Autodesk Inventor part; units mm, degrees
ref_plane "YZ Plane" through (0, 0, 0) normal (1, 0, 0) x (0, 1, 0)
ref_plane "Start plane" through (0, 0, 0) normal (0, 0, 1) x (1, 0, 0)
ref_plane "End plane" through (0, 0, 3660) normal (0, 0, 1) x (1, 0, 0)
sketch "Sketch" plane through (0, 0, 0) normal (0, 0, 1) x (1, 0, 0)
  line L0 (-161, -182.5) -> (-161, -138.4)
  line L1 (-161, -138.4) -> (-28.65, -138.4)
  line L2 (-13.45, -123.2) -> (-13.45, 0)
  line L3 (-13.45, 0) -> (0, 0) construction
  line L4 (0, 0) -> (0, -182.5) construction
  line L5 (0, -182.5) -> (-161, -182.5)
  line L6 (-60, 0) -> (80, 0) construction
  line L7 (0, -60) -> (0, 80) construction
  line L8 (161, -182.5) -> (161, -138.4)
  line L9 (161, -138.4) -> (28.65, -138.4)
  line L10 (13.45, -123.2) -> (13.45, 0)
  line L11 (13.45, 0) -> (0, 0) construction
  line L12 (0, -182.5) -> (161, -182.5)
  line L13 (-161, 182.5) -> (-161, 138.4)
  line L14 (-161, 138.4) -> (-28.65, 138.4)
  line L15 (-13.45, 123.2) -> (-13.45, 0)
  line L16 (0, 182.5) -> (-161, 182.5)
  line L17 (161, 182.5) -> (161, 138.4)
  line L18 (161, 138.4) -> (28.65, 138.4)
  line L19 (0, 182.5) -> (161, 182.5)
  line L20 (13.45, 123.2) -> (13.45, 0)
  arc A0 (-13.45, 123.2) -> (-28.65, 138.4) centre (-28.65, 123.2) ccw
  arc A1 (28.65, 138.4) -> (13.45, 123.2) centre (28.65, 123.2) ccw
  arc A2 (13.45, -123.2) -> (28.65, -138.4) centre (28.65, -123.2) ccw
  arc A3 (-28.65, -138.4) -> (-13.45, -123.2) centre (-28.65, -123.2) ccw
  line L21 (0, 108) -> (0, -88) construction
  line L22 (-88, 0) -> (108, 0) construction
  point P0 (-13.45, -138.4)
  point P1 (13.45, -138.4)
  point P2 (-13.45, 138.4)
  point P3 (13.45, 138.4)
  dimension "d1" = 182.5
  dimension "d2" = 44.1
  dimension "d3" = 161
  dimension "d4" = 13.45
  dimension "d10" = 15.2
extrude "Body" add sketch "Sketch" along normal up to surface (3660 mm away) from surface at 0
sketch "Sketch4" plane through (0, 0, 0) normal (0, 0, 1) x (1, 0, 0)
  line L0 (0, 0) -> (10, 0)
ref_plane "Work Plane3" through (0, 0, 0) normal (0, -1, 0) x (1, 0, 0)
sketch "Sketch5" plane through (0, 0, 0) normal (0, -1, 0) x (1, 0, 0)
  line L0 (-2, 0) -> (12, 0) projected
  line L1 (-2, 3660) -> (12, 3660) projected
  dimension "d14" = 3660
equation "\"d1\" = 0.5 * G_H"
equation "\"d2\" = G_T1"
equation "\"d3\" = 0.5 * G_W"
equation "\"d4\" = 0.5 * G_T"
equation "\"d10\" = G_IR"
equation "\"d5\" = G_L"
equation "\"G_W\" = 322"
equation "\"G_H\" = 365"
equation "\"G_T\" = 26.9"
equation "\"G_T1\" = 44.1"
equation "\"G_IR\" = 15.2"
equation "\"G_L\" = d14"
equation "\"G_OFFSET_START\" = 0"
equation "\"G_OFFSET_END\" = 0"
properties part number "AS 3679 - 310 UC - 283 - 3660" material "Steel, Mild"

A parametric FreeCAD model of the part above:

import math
import FreeCAD as App
import Part
import Sketcher

V = App.Vector

doc = App.newDocument("Part")
body = doc.addObject("PartDesign::Body", "Body")

# Sketch on XY plane
sketch1 = body.newObject("Sketcher::SketchObject", "Sketch")
sketch1.AttachmentSupport = (doc.getObject("XY_Plane"), [""])
sketch1.MapMode = "FlatFace"
sketch1.addGeometry(Part.LineSegment(V(-161, -138, 0), V(-161, -182, 0)), False)
sketch1.addGeometry(Part.LineSegment(V(-161, -182, 0), V(161, -182, 0)), False)
sketch1.addGeometry(Part.LineSegment(V(161, -182, 0), V(161, -138, 0)), False)
sketch1.addGeometry(Part.LineSegment(V(161, -138, 0), V(29, -138, 0)), False)
sketch1.addGeometry(Part.ArcOfCircle(Part.Circle(V(29, -123, 0), V(0, 0, 1), 15), math.radians(180), math.radians(270)), False)
sketch1.addGeometry(Part.LineSegment(V(13, -123, 0), V(13, 123, 0)), False)
sketch1.addGeometry(Part.ArcOfCircle(Part.Circle(V(29, 123, 0), V(0, 0, 1), 15), math.radians(90), math.radians(180)), False)
sketch1.addGeometry(Part.LineSegment(V(29, 138, 0), V(161, 138, 0)), False)
sketch1.addGeometry(Part.LineSegment(V(161, 138, 0), V(161, 182, 0)), False)
sketch1.addGeometry(Part.LineSegment(V(161, 182, 0), V(-161, 182, 0)), False)
sketch1.addGeometry(Part.LineSegment(V(-161, 182, 0), V(-161, 138, 0)), False)
sketch1.addGeometry(Part.LineSegment(V(-161, 138, 0), V(-29, 138, 0)), False)
sketch1.addGeometry(Part.ArcOfCircle(Part.Circle(V(-29, 123, 0), V(0, 0, 1), 15), math.radians(0), math.radians(90)), False)
sketch1.addGeometry(Part.LineSegment(V(-13, 123, 0), V(-13, -123, 0)), False)
sketch1.addGeometry(Part.ArcOfCircle(Part.Circle(V(-29, -123, 0), V(0, 0, 1), 15), math.radians(-90), math.radians(0)), False)
sketch1.addGeometry(Part.LineSegment(V(-29, -138, 0), V(-161, -138, 0)), False)
sketch1.addConstraint(Sketcher.Constraint("Coincident", 0, 2, 1, 1))
sketch1.addConstraint(Sketcher.Constraint("Coincident", 1, 2, 2, 1))
sketch1.addConstraint(Sketcher.Constraint("Coincident", 2, 2, 3, 1))
sketch1.addConstraint(Sketcher.Constraint("Tangent", 3, 2, 4, 2))
sketch1.addConstraint(Sketcher.Constraint("Tangent", 4, 1, 5, 1))
sketch1.addConstraint(Sketcher.Constraint("Tangent", 5, 2, 6, 2))
sketch1.addConstraint(Sketcher.Constraint("Tangent", 6, 1, 7, 1))
sketch1.addConstraint(Sketcher.Constraint("Coincident", 7, 2, 8, 1))
sketch1.addConstraint(Sketcher.Constraint("Coincident", 8, 2, 9, 1))
sketch1.addConstraint(Sketcher.Constraint("Coincident", 9, 2, 10, 1))
sketch1.addConstraint(Sketcher.Constraint("Coincident", 10, 2, 11, 1))
sketch1.addConstraint(Sketcher.Constraint("Tangent", 11, 2, 12, 2))
sketch1.addConstraint(Sketcher.Constraint("Tangent", 12, 1, 13, 1))
sketch1.addConstraint(Sketcher.Constraint("Tangent", 13, 2, 14, 2))
sketch1.addConstraint(Sketcher.Constraint("Tangent", 14, 1, 15, 1))
sketch1.addConstraint(Sketcher.Constraint("Coincident", 15, 2, 0, 1))
sketch1.addConstraint(Sketcher.Constraint("Vertical", 0))
sketch1.addConstraint(Sketcher.Constraint("Horizontal", 1))
sketch1.addConstraint(Sketcher.Constraint("Vertical", 2))
sketch1.addConstraint(Sketcher.Constraint("Horizontal", 3))
sketch1.addConstraint(Sketcher.Constraint("Vertical", 5))
sketch1.addConstraint(Sketcher.Constraint("Horizontal", 7))
sketch1.addConstraint(Sketcher.Constraint("Vertical", 8))
sketch1.addConstraint(Sketcher.Constraint("Horizontal", 9))
sketch1.addConstraint(Sketcher.Constraint("Vertical", 10))
sketch1.addConstraint(Sketcher.Constraint("Horizontal", 11))
sketch1.addConstraint(Sketcher.Constraint("Vertical", 13))
sketch1.addConstraint(Sketcher.Constraint("Horizontal", 15))
sketch1.addConstraint(Sketcher.Constraint("Equal", 4, 6))
sketch1.addConstraint(Sketcher.Constraint("Equal", 6, 12))
sketch1.addConstraint(Sketcher.Constraint("Equal", 12, 14))
sketch1.addConstraint(Sketcher.Constraint("Symmetric", 4, 3, 12, 3, -1, 1))
sketch1.addConstraint(Sketcher.Constraint("Symmetric", 0, 2, 8, 2, -1, 1))
sketch1.addConstraint(Sketcher.Constraint("Symmetric", 7, 2, 10, 2, -2))
sketch1.addConstraint(Sketcher.Constraint("Symmetric", 2, 2, 15, 2, -2))
sketch1.addConstraint(Sketcher.Constraint("Radius", 4, 15.2))
sketch1.addConstraint(Sketcher.Constraint("DistanceY", 0, 2, 0, 1, 44.1))
sketch1.addConstraint(Sketcher.Constraint("DistanceX", 0, 2, -1, 1, 161.0))
sketch1.addConstraint(Sketcher.Constraint("DistanceY", 0, 2, -1, 1, 182.5))
sketch1.addConstraint(Sketcher.Constraint("DistanceX", -1, 1, 4, 1, 13.45))
pad1 = body.newObject("PartDesign::Pad", "Pad")
pad1.Profile = sketch1
pad1.Length = 3660

doc.recompute()
